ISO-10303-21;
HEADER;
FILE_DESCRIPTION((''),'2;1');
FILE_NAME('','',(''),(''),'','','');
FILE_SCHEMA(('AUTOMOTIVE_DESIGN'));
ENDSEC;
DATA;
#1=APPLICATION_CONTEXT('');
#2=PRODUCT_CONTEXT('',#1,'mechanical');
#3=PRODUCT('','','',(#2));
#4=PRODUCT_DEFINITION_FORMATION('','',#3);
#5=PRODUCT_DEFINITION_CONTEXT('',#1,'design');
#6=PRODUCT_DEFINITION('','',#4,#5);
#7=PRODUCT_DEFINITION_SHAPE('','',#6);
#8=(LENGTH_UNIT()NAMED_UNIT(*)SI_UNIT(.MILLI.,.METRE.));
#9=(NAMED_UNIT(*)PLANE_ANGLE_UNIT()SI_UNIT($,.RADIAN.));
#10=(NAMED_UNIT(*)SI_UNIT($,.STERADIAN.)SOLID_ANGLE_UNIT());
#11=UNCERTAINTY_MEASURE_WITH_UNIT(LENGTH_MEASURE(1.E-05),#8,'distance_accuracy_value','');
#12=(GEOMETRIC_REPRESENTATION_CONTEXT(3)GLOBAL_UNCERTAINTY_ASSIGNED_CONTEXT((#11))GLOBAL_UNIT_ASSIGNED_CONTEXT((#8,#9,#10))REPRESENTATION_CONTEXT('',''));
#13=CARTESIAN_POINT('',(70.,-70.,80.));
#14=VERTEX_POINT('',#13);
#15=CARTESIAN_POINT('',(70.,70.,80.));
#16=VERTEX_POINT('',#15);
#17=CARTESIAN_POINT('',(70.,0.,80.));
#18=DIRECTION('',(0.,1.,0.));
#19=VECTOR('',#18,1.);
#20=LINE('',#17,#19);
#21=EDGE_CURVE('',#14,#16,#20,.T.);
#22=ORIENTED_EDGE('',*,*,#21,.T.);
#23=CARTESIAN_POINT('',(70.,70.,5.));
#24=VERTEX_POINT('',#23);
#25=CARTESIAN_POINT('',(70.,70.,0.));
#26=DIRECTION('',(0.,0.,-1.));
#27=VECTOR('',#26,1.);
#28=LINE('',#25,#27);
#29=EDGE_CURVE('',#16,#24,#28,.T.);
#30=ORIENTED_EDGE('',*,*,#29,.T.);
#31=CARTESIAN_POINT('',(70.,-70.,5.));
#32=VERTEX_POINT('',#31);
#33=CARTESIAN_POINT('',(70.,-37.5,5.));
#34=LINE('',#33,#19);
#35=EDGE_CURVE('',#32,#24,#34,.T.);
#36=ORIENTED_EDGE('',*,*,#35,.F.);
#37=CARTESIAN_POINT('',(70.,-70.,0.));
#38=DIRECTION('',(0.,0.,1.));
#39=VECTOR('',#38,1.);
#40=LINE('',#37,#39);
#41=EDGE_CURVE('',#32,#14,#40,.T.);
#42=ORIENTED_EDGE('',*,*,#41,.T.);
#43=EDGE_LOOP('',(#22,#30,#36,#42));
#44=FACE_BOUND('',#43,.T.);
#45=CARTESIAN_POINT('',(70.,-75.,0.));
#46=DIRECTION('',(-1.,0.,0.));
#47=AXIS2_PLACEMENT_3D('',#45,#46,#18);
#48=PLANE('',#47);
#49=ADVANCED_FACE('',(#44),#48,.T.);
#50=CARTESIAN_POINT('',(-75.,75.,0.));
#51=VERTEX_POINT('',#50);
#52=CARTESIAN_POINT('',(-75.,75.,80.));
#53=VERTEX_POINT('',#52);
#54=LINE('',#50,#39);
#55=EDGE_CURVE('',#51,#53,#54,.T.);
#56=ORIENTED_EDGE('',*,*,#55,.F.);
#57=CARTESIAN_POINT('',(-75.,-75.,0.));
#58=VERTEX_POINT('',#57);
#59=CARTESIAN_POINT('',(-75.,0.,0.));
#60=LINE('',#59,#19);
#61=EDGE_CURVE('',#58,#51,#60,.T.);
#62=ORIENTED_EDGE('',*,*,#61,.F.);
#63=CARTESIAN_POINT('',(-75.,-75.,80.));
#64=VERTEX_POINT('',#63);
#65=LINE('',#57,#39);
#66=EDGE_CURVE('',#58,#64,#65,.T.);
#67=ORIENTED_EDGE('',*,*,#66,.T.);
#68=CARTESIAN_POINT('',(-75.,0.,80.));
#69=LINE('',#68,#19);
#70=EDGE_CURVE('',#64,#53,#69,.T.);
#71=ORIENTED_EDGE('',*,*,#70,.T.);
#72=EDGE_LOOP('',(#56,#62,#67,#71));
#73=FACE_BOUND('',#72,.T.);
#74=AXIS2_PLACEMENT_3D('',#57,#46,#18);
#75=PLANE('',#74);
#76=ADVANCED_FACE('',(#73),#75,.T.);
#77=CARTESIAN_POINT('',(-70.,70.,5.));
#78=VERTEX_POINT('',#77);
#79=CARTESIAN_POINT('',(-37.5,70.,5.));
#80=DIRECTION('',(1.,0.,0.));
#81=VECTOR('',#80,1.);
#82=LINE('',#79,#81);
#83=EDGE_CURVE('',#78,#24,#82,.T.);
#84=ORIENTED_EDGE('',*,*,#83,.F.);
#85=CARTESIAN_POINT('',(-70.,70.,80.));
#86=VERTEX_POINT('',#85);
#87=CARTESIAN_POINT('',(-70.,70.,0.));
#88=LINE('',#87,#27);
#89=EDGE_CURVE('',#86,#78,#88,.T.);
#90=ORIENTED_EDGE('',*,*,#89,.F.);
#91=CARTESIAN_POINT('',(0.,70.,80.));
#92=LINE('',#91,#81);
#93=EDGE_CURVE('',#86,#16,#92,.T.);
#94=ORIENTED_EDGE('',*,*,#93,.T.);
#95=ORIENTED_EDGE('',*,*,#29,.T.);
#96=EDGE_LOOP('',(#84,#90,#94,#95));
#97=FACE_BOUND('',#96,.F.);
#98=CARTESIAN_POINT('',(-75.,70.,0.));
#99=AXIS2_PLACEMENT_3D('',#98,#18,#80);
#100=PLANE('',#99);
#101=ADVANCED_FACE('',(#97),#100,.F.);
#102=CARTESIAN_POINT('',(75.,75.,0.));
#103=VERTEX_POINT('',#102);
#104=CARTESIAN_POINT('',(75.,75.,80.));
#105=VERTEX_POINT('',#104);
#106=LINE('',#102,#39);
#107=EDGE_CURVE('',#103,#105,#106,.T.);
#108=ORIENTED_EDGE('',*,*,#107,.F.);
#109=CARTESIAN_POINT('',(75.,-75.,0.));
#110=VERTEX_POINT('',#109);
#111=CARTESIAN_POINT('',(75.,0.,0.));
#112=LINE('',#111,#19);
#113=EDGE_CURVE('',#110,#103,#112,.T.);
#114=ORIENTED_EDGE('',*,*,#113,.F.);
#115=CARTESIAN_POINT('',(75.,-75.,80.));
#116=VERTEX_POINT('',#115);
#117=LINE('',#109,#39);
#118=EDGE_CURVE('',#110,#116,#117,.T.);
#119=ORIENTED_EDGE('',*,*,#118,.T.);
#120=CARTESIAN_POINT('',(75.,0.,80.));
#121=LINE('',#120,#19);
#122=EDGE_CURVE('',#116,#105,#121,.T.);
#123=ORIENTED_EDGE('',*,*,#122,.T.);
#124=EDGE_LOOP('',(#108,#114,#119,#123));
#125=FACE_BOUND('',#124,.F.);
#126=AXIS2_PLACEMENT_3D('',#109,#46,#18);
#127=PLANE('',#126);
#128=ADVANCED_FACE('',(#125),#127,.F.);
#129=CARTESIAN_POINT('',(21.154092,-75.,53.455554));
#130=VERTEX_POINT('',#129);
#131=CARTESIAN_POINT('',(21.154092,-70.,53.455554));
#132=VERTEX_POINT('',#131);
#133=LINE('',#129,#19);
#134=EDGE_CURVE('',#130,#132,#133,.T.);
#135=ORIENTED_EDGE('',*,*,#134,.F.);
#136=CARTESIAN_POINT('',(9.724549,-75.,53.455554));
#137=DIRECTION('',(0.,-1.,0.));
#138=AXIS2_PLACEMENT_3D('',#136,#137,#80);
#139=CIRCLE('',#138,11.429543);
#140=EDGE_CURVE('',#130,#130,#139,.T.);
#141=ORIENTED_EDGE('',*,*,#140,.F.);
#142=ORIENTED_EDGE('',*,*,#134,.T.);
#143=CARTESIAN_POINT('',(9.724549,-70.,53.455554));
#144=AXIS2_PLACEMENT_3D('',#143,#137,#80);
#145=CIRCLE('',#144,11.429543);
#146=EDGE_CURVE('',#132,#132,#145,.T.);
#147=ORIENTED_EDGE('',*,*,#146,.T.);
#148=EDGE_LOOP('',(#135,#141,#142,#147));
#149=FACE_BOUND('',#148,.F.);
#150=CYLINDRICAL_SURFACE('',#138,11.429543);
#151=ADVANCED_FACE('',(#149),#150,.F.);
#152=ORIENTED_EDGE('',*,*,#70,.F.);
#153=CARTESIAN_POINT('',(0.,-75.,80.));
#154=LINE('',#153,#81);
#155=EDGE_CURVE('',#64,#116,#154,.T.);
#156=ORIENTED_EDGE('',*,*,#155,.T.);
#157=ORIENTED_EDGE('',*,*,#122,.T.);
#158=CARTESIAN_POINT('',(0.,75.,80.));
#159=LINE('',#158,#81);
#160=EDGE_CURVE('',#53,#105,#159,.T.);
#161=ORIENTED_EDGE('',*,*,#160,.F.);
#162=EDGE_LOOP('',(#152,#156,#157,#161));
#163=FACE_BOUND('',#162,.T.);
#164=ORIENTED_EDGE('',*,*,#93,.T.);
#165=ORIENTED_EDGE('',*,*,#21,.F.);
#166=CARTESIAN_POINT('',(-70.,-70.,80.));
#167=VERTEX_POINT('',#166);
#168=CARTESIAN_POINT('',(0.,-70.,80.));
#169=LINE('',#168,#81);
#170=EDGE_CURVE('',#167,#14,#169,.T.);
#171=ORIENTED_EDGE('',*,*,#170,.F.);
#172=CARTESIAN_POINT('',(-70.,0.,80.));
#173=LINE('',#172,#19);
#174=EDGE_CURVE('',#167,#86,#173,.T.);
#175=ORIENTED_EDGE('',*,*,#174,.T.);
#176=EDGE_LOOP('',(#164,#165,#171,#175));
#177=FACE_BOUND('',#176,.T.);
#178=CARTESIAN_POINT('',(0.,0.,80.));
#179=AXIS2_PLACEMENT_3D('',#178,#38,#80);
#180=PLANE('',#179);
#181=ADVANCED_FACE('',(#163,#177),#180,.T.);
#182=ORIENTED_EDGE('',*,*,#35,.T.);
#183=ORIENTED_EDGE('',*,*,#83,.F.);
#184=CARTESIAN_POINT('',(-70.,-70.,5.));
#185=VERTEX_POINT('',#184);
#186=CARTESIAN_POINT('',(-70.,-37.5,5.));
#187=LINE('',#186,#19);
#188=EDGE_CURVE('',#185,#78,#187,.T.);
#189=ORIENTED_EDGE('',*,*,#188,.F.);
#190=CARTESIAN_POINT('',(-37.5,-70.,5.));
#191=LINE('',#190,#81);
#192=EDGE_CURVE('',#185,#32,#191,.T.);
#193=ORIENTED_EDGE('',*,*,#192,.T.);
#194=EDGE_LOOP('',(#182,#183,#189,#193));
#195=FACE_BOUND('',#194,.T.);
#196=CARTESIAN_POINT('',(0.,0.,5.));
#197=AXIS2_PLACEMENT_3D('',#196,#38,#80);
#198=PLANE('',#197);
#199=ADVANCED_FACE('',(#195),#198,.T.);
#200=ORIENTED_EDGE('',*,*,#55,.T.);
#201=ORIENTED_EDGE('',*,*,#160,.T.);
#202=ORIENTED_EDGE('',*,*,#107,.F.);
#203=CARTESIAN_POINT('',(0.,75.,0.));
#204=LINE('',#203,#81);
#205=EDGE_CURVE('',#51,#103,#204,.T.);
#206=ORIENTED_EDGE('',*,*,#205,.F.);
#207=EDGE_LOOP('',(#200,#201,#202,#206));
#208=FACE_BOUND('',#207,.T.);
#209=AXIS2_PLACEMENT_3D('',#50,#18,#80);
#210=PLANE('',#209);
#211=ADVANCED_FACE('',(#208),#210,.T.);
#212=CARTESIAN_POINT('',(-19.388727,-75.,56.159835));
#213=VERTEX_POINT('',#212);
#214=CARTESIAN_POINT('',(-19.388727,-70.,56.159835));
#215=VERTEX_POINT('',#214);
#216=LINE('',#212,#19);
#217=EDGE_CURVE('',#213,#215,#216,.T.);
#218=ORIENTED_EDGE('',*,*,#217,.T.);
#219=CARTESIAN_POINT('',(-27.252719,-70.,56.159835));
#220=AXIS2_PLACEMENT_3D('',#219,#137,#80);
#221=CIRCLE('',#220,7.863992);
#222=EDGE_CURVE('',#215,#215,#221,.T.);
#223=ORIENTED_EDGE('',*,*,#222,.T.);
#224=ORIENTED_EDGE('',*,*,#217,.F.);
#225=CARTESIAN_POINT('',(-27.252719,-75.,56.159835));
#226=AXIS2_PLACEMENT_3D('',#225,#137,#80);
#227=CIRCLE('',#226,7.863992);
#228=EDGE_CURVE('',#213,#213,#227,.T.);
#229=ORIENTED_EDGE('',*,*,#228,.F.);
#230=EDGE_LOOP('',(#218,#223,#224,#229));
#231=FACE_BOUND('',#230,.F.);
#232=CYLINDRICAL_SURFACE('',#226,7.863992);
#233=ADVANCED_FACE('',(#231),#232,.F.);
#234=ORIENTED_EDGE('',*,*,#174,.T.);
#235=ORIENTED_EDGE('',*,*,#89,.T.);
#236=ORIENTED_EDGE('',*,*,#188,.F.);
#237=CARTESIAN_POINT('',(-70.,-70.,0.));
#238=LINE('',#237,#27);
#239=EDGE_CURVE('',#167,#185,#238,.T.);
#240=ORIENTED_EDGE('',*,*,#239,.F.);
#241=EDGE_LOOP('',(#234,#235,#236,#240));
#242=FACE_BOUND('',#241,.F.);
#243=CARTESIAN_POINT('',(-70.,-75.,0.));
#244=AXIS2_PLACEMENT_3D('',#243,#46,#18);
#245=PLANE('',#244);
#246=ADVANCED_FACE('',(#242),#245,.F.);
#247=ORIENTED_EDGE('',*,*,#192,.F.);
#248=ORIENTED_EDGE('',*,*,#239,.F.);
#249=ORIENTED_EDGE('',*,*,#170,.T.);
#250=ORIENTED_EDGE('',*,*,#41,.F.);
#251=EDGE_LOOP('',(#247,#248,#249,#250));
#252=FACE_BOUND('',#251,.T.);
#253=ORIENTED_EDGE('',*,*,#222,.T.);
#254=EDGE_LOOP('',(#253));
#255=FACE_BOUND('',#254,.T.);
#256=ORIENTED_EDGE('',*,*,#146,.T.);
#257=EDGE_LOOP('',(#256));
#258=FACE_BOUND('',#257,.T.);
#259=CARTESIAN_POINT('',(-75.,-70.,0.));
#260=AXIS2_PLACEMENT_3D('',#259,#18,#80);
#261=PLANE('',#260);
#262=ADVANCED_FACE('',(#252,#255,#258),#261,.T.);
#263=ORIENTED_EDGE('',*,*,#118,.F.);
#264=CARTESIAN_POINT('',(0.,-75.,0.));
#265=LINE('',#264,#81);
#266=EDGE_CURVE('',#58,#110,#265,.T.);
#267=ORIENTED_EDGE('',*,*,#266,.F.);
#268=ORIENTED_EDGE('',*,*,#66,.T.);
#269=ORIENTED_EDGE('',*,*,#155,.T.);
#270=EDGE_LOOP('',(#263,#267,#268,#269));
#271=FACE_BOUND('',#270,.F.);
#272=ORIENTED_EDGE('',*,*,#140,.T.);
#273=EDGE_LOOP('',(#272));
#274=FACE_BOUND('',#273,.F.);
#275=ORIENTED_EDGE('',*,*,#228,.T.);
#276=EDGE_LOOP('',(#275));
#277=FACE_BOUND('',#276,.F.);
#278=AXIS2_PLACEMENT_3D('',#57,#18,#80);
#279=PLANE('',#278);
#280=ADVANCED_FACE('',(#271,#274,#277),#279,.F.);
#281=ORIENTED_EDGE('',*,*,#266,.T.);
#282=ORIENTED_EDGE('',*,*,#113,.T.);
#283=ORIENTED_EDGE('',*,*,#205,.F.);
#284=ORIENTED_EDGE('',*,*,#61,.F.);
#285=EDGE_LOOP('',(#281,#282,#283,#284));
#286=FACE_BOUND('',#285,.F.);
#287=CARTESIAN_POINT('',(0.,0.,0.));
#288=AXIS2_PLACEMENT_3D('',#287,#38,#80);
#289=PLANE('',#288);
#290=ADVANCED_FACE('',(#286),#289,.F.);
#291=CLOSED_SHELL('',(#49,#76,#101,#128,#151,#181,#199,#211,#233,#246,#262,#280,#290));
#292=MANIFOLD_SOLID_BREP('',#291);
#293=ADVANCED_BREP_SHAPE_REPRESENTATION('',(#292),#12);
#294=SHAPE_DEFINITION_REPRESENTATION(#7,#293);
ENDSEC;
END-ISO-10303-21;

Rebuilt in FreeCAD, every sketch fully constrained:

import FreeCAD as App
import Part
import Sketcher
from FreeCAD import Vector


def faces_at(feature, points):
    """Names of the faces that lie closest to the given points."""
    faces = feature.Shape.Faces
    near = lambda p: min(range(len(faces)), key=lambda i: faces[i].distToShape(Part.Vertex(*p))[0])
    return sorted({f"Face{near(p) + 1}" for p in points})

doc = App.newDocument("Part")
body = doc.addObject("PartDesign::Body", "Body")

# Sketch on XY plane
sketch1 = body.newObject("Sketcher::SketchObject", "Sketch")
sketch1.AttachmentSupport = (doc.getObject("XY_Plane"), [""])
sketch1.MapMode = "FlatFace"
sketch1.addGeometry([
    Part.LineSegment(Vector(-75, 75, 0), Vector(-75, -75, 0)),
    Part.LineSegment(Vector(-75, -75, 0), Vector(75, -75, 0)),
    Part.LineSegment(Vector(75, -75, 0), Vector(75, 75, 0)),
    Part.LineSegment(Vector(75, 75, 0), Vector(-75, 75, 0)),
], False)
sketch1.addConstraint([
    Sketcher.Constraint("Coincident", 0, 2, 1, 1),
    Sketcher.Constraint("Coincident", 1, 2, 2, 1),
    Sketcher.Constraint("Coincident", 2, 2, 3, 1),
    Sketcher.Constraint("Coincident", 3, 2, 0, 1),
    Sketcher.Constraint("Vertical", 0),
    Sketcher.Constraint("Horizontal", 1),
    Sketcher.Constraint("Vertical", 2),
    Sketcher.Constraint("Horizontal", 3),
    Sketcher.Constraint("Symmetric", 0, 2, 2, 2, -1, 1),
    Sketcher.Constraint("Equal", 3, 0),
    Sketcher.Constraint("DistanceX", 1, 1, 1, 2, 150.0),
])
pad1 = body.newObject("PartDesign::Pad", "Pad")
pad1.Profile = sketch1
pad1.Length = 80
doc.recompute()

thickness = body.newObject("PartDesign::Thickness", "Thickness")
thickness.Base = (pad1, faces_at(pad1, [(0, 0, 80)]))
thickness.Value = 5
thickness.Reversed = True
thickness.Join = "Arc"

# Sketch on XZ plane
sketch2 = body.newObject("Sketcher::SketchObject", "Sketch001")
sketch2.AttachmentSupport = (doc.getObject("XZ_Plane"), [""])
sketch2.MapMode = "FlatFace"
sketch2.AttachmentOffset = App.Placement(Vector(0, 0, 75), App.Rotation())
sketch2.addGeometry([
    Part.Circle(Vector(-27, 56, 0), Vector(0, 0, 1), 8),
    Part.Circle(Vector(10, 53, 0), Vector(0, 0, 1), 11),
], False)
sketch2.addConstraint([
    Sketcher.Constraint("Diameter", 0, 15.727984),
    Sketcher.Constraint("Diameter", 1, 22.859086),
    Sketcher.Constraint("DistanceX", 0, 3, -1, 1, 27.252719),
    Sketcher.Constraint("DistanceX", -1, 1, 1, 3, 9.724549),
    Sketcher.Constraint("DistanceY", 1, 3, 0, 3, 2.704281),
    Sketcher.Constraint("DistanceY", -1, 1, 0, 3, 56.159835),
])
pocket1 = body.newObject("PartDesign::Pocket", "Pocket")
pocket1.Profile = sketch2
pocket1.Length = 25

doc.recompute()
